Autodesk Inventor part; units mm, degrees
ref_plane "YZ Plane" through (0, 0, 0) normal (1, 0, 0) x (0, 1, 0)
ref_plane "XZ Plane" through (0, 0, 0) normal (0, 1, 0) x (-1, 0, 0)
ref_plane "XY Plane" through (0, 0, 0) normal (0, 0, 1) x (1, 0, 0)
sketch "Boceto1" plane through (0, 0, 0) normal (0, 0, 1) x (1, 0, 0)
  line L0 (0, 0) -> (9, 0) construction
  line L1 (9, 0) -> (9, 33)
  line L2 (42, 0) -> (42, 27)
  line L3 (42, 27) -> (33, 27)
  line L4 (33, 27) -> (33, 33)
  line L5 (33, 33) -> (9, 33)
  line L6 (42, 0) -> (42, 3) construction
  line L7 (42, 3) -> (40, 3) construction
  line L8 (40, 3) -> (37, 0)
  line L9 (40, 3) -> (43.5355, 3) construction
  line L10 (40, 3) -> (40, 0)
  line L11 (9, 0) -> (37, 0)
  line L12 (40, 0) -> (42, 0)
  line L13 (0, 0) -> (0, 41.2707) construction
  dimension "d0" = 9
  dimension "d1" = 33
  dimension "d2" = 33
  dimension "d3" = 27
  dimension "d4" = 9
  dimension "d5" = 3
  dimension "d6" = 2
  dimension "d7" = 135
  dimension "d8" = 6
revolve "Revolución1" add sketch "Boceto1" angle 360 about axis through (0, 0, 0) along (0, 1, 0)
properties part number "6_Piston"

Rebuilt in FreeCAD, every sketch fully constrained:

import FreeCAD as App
import Part
import Sketcher
from FreeCAD import Vector

doc = App.newDocument("Part")
params = doc.addObject("Spreadsheet::Sheet", "Params")
for row, (alias, value) in enumerate([
    ("sketch1_width", "2 mm"),
    ("sketch1_width2", "9 mm"),
    ("sketch1_height", "33 mm"),
    ("sketch1_height2", "3 mm"),
    ("sketch1_height3", "27 mm"),
    ("revolution_angle", "360 deg"),
], start=1):
    params.set(f"A{row}", alias)
    params.set(f"B{row}", "=" + value)
    params.setAlias(f"B{row}", alias)

body = doc.addObject("PartDesign::Body", "Body")

sketch1 = body.newObject("Sketcher::SketchObject", "Sketch")
sketch1.AttachmentSupport = (doc.getObject("XY_Plane"), [""])
sketch1.MapMode = "FlatFace"
sketch1.addGeometry(Part.LineSegment(Vector(9, 33, 0), Vector(9, 0, 0)), False)
sketch1.addGeometry(Part.LineSegment(Vector(9, 0, 0), Vector(37, 0, 0)), False)
sketch1.addGeometry(Part.LineSegment(Vector(37, 0, 0), Vector(40, 3, 0)), False)
sketch1.addGeometry(Part.LineSegment(Vector(40, 3, 0), Vector(40, 0, 0)), False)
sketch1.addGeometry(Part.LineSegment(Vector(40, 0, 0), Vector(42, 0, 0)), False)
sketch1.addGeometry(Part.LineSegment(Vector(42, 0, 0), Vector(42, 27, 0)), False)
sketch1.addGeometry(Part.LineSegment(Vector(42, 27, 0), Vector(33, 27, 0)), False)
sketch1.addGeometry(Part.LineSegment(Vector(33, 27, 0), Vector(33, 33, 0)), False)
sketch1.addGeometry(Part.LineSegment(Vector(33, 33, 0), Vector(9, 33, 0)), False)
sketch1.addConstraint(Sketcher.Constraint("Coincident", 0, 2, 1, 1))
sketch1.addConstraint(Sketcher.Constraint("Coincident", 1, 2, 2, 1))
sketch1.addConstraint(Sketcher.Constraint("Coincident", 2, 2, 3, 1))
sketch1.addConstraint(Sketcher.Constraint("Coincident", 3, 2, 4, 1))
sketch1.addConstraint(Sketcher.Constraint("Coincident", 4, 2, 5, 1))
sketch1.addConstraint(Sketcher.Constraint("Coincident", 5, 2, 6, 1))
sketch1.addConstraint(Sketcher.Constraint("Coincident", 6, 2, 7, 1))
sketch1.addConstraint(Sketcher.Constraint("Coincident", 7, 2, 8, 1))
sketch1.addConstraint(Sketcher.Constraint("Coincident", 8, 2, 0, 1))
sketch1.addConstraint(Sketcher.Constraint("Vertical", 0))
sketch1.addConstraint(Sketcher.Constraint("Horizontal", 1))
sketch1.addConstraint(Sketcher.Constraint("Vertical", 3))
sketch1.addConstraint(Sketcher.Constraint("Horizontal", 4))
sketch1.addConstraint(Sketcher.Constraint("Vertical", 5))
sketch1.addConstraint(Sketcher.Constraint("Horizontal", 6))
sketch1.addConstraint(Sketcher.Constraint("Vertical", 7))
sketch1.addConstraint(Sketcher.Constraint("Horizontal", 8))
sketch1.addConstraint(Sketcher.Constraint("PointOnObject", 0, 2, -1))
sketch1.addConstraint(Sketcher.Constraint("PointOnObject", 3, 2, -1))
sketch1.addConstraint(Sketcher.Constraint("DistanceX", 4, 1, 4, 2, 2.0))
sketch1.addConstraint(Sketcher.Constraint("DistanceX", 6, 2, 6, 1, 9.0))
sketch1.addConstraint(Sketcher.Constraint("DistanceY", 0, 2, 0, 1, 33.0))
sketch1.addConstraint(Sketcher.Constraint("DistanceY", 3, 2, 3, 1, 3.0))
sketch1.addConstraint(Sketcher.Constraint("DistanceY", 5, 1, 5, 2, 27.0))
sketch1.addConstraint(Sketcher.Constraint("DistanceX", -1, 1, 0, 2, 9.0))
sketch1.addConstraint(Sketcher.Constraint("DistanceX", -1, 1, 6, 2, 33.0))
sketch1.addConstraint(Sketcher.Constraint("DistanceX", 1, 2, 2, 2, 3.0))
sketch1.setExpression("Constraints[19]", "Params.sketch1_width")
sketch1.setExpression("Constraints[20]", "Params.sketch1_width2")
sketch1.setExpression("Constraints[21]", "Params.sketch1_height")
sketch1.setExpression("Constraints[22]", "Params.sketch1_height2")
sketch1.setExpression("Constraints[23]", "Params.sketch1_height3")
revolution = body.newObject("PartDesign::Revolution", "Revolution")
revolution.Profile = sketch1
revolution.ReferenceAxis = (sketch1, ["V_Axis"])
revolution.setExpression("Angle", "Params.revolution_angle")

doc.recompute()
